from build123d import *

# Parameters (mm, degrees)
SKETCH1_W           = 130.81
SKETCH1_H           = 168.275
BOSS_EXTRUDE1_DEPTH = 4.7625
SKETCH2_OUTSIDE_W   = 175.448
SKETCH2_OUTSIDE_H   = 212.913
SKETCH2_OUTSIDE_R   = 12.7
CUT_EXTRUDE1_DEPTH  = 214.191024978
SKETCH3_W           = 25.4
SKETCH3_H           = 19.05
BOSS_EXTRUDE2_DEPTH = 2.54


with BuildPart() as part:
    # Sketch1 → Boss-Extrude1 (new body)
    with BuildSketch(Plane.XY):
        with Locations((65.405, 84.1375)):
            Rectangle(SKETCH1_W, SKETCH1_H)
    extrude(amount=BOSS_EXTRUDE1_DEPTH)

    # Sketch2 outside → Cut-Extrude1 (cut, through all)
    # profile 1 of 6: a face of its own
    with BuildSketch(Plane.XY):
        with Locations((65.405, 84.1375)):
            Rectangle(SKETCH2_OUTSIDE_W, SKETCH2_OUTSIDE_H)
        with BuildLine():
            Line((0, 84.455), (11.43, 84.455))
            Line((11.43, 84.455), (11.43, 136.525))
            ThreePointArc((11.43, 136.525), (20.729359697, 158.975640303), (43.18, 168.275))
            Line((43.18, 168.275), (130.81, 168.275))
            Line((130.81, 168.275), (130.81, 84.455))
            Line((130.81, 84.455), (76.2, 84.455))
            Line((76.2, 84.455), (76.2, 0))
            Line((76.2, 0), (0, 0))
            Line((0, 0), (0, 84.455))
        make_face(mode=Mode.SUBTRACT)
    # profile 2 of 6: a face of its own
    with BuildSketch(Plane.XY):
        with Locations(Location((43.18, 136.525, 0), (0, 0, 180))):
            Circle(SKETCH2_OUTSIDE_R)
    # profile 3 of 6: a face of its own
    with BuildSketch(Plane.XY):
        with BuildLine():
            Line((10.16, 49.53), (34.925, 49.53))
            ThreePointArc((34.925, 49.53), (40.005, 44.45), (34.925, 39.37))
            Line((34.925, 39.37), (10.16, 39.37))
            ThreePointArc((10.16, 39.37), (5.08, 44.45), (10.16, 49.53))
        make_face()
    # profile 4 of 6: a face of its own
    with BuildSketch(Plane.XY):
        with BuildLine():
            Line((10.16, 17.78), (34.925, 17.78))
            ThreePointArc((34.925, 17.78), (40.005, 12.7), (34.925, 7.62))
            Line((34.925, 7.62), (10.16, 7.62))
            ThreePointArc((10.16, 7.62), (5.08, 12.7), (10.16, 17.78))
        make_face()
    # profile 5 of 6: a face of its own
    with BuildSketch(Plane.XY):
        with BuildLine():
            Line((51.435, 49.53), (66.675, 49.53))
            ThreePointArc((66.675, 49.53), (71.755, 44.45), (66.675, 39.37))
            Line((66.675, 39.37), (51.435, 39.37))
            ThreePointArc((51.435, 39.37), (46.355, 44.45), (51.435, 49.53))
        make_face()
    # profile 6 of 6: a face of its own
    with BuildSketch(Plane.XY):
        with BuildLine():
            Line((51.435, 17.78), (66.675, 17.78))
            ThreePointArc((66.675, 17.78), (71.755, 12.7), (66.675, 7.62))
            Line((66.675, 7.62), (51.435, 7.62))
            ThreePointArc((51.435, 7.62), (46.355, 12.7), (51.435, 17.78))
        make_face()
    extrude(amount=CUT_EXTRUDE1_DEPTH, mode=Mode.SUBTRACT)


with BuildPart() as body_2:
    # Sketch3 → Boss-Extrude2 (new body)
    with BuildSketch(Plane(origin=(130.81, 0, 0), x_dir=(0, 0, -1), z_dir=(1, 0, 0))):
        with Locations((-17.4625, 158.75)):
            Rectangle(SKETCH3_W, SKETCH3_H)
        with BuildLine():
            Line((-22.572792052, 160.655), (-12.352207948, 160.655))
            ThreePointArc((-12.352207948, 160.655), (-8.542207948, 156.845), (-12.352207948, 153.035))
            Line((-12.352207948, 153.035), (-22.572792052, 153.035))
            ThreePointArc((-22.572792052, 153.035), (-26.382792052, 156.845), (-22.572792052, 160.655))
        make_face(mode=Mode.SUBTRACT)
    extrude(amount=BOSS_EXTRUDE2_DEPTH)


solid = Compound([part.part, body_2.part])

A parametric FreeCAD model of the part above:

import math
import FreeCAD as App
import Part
import Sketcher
from FreeCAD import Vector
Q = App.Units.Quantity


def add_polygon(sketch, points):
    """Adds a closed chain of lines whose ends are joined by coincident constraints."""
    first, n = sketch.GeometryCount, len(points)
    for a, b in zip(points, points[1:] + points[:1]):
        sketch.addGeometry(Part.LineSegment(App.Vector(*a, 0), App.Vector(*b, 0)), False)
    for i in range(n):
        sketch.addConstraint(Sketcher.Constraint("Coincident", first + i, 2, first + (i + 1) % n, 1))

doc = App.newDocument("Part")
body = doc.addObject("PartDesign::Body", "Body")

sketch1 = doc.addObject("Sketcher::SketchObject", "Sketch")
body.addObject(sketch1)
sketch1.AttachmentSupport = (doc.XY_Plane, [""])
sketch1.MapMode = "FlatFace"
add_polygon(sketch1, [(0, 168), (0, 0), (131, 0), (131, 168)])
sketch1.addConstraint([
    Sketcher.Constraint("Vertical", 0),
    Sketcher.Constraint("Horizontal", 1),
    Sketcher.Constraint("Vertical", 2),
    Sketcher.Constraint("Horizontal", 3),
    Sketcher.Constraint("Coincident", 0, 2, -1, 1),
    Sketcher.Constraint("DistanceX", 1, 1, 1, 2, Q("5.15 in")),
    Sketcher.Constraint("DistanceY", 0, 2, 0, 1, Q("6.625 in")),
])
pad1 = doc.addObject("PartDesign::Pad", "Pad")
body.addObject(pad1)
pad1.Profile = sketch1
pad1.Length = Q("0.1875 in")

sketch2 = doc.addObject("Sketcher::SketchObject", "Sketch001")
body.addObject(sketch2)
sketch2.AttachmentSupport = (doc.XY_Plane, [""])
sketch2.MapMode = "FlatFace"
add_polygon(sketch2, [(-22, 191), (-22, -22), (153, -22), (153, 191)])
sketch2.addGeometry(Part.LineSegment(Vector(0, 0, 0), Vector(0, 84, 0)), False)
sketch2.addGeometry(Part.LineSegment(Vector(0, 84, 0), Vector(11, 84, 0)), False)
sketch2.addGeometry(Part.LineSegment(Vector(11, 84, 0), Vector(11, 137, 0)), False)
sketch2.addGeometry(Part.ArcOfCircle(Part.Circle(Vector(43, 137, 0), Vector(0, 0, 1), 32), math.radians(90), math.radians(180)), False)
sketch2.addGeometry(Part.LineSegment(Vector(43, 168, 0), Vector(131, 168, 0)), False)
sketch2.addGeometry(Part.LineSegment(Vector(131, 168, 0), Vector(131, 84, 0)), False)
sketch2.addGeometry(Part.LineSegment(Vector(131, 84, 0), Vector(76, 84, 0)), False)
sketch2.addGeometry(Part.LineSegment(Vector(76, 84, 0), Vector(76, 0, 0)), False)
sketch2.addGeometry(Part.LineSegment(Vector(76, 0, 0), Vector(0, 0, 0)), False)
sketch2.addGeometry(Part.Circle(Vector(43, 137, 0), Vector(0, 0, 1), 13), False)
sketch2.addGeometry(Part.LineSegment(Vector(35, 50, 0), Vector(10, 50, 0)), False)
sketch2.addGeometry(Part.ArcOfCircle(Part.Circle(Vector(10, 44, 0), Vector(0, 0, 1), 5), math.radians(90), math.radians(270)), False)
sketch2.addGeometry(Part.LineSegment(Vector(10, 39, 0), Vector(35, 39, 0)), False)
sketch2.addGeometry(Part.ArcOfCircle(Part.Circle(Vector(35, 44, 0), Vector(0, 0, 1), 5), math.radians(-90), math.radians(90)), False)
sketch2.addGeometry(Part.LineSegment(Vector(35, 18, 0), Vector(10, 18, 0)), False)
sketch2.addGeometry(Part.ArcOfCircle(Part.Circle(Vector(10, 13, 0), Vector(0, 0, 1), 5), math.radians(90), math.radians(270)), False)
sketch2.addGeometry(Part.LineSegment(Vector(10, 8, 0), Vector(35, 8, 0)), False)
sketch2.addGeometry(Part.ArcOfCircle(Part.Circle(Vector(35, 13, 0), Vector(0, 0, 1), 5), math.radians(-90), math.radians(90)), False)
sketch2.addGeometry(Part.LineSegment(Vector(67, 50, 0), Vector(51, 50, 0)), False)
sketch2.addGeometry(Part.ArcOfCircle(Part.Circle(Vector(51, 44, 0), Vector(0, 0, 1), 5), math.radians(90), math.radians(270)), False)
sketch2.addGeometry(Part.LineSegment(Vector(51, 39, 0), Vector(67, 39, 0)), False)
sketch2.addGeometry(Part.ArcOfCircle(Part.Circle(Vector(67, 44, 0), Vector(0, 0, 1), 5), math.radians(-90), math.radians(90)), False)
sketch2.addGeometry(Part.LineSegment(Vector(67, 18, 0), Vector(51, 18, 0)), False)
sketch2.addGeometry(Part.ArcOfCircle(Part.Circle(Vector(51, 13, 0), Vector(0, 0, 1), 5), math.radians(90), math.radians(270)), False)
sketch2.addGeometry(Part.LineSegment(Vector(51, 8, 0), Vector(67, 8, 0)), False)
sketch2.addGeometry(Part.ArcOfCircle(Part.Circle(Vector(67, 13, 0), Vector(0, 0, 1), 5), math.radians(-90), math.radians(90)), False)
sketch2.addConstraint([
    Sketcher.Constraint("Coincident", 4, 2, 5, 1),
    Sketcher.Constraint("Coincident", 5, 2, 6, 1),
    Sketcher.Constraint("Tangent", 6, 2, 7, 2),
    Sketcher.Constraint("Tangent", 7, 1, 8, 1),
    Sketcher.Constraint("Coincident", 8, 2, 9, 1),
    Sketcher.Constraint("Coincident", 9, 2, 10, 1),
    Sketcher.Constraint("Coincident", 10, 2, 11, 1),
    Sketcher.Constraint("Coincident", 11, 2, 12, 1),
    Sketcher.Constraint("Coincident", 12, 2, 4, 1),
    Sketcher.Constraint("Tangent", 14, 2, 15, 1),
    Sketcher.Constraint("Tangent", 15, 2, 16, 1),
    Sketcher.Constraint("Tangent", 16, 2, 17, 1),
    Sketcher.Constraint("Tangent", 17, 2, 14, 1),
    Sketcher.Constraint("Tangent", 18, 2, 19, 1),
    Sketcher.Constraint("Tangent", 19, 2, 20, 1),
    Sketcher.Constraint("Tangent", 20, 2, 21, 1),
    Sketcher.Constraint("Tangent", 21, 2, 18, 1),
    Sketcher.Constraint("Tangent", 22, 2, 23, 1),
    Sketcher.Constraint("Tangent", 23, 2, 24, 1),
    Sketcher.Constraint("Tangent", 24, 2, 25, 1),
    Sketcher.Constraint("Tangent", 25, 2, 22, 1),
    Sketcher.Constraint("Tangent", 26, 2, 27, 1),
    Sketcher.Constraint("Tangent", 27, 2, 28, 1),
    Sketcher.Constraint("Tangent", 28, 2, 29, 1),
    Sketcher.Constraint("Tangent", 29, 2, 26, 1),
    Sketcher.Constraint("Vertical", 0),
    Sketcher.Constraint("Horizontal", 1),
    Sketcher.Constraint("Vertical", 2),
    Sketcher.Constraint("Horizontal", 3),
    Sketcher.Constraint("Vertical", 4),
    Sketcher.Constraint("Horizontal", 5),
    Sketcher.Constraint("Vertical", 6),
    Sketcher.Constraint("Horizontal", 8),
    Sketcher.Constraint("Vertical", 9),
    Sketcher.Constraint("Horizontal", 10),
    Sketcher.Constraint("Vertical", 11),
    Sketcher.Constraint("Horizontal", 12),
    Sketcher.Constraint("Horizontal", 14),
    Sketcher.Constraint("Horizontal", 16),
    Sketcher.Constraint("Horizontal", 18),
    Sketcher.Constraint("Horizontal", 20),
    Sketcher.Constraint("Horizontal", 22),
    Sketcher.Constraint("Horizontal", 24),
    Sketcher.Constraint("Horizontal", 26),
    Sketcher.Constraint("Horizontal", 28),
    Sketcher.Constraint("Coincident", 12, 2, -1, 1),
    Sketcher.Constraint("Coincident", 13, 3, 7, 3),
    Sketcher.Constraint("Equal", 17, 19),
    Sketcher.Constraint("Equal", 21, 23),
    Sketcher.Constraint("Equal", 25, 27),
    Sketcher.Constraint("Horizontal", 17, 3, 23, 3),
    Sketcher.Constraint("Horizontal", 21, 3, 27, 3),
    Sketcher.Constraint("Horizontal", 5, 2, 9, 2),
    Sketcher.Constraint("Vertical", 15, 3, 19, 3),
    Sketcher.Constraint("Vertical", 17, 3, 21, 3),
    Sketcher.Constraint("Vertical", 23, 3, 27, 3),
    Sketcher.Constraint("Vertical", 25, 3, 29, 3),
    Sketcher.Constraint("Diameter", 13, Q("1 in")),
    Sketcher.Constraint("Radius", 15, Q("0.2 in")),
    Sketcher.Constraint("DistanceX", 12, 2, 12, 1, Q("3 in")),
    Sketcher.Constraint("Radius", 7, Q("1.25 in")),
    Sketcher.Constraint("DistanceX", 22, 2, 22, 1, Q("0.6 in")),
    Sketcher.Constraint("DistanceY", 9, 2, 9, 1, Q("3.3 in")),
    Sketcher.Constraint("DistanceX", 5, 1, 5, 2, Q("0.45 in")),
    Sketcher.Constraint("DistanceX", 8, 1, 8, 2, Q("3.45 in")),
    Sketcher.Constraint("DistanceX", -1, 1, 15, 3, Q("0.4 in")),
    Sketcher.Constraint("DistanceY", -1, 1, 19, 3, Q("0.5 in")),
    Sketcher.Constraint("DistanceX", 14, 2, 14, 1, Q("0.975 in")),
    Sketcher.Constraint("DistanceY", 4, 1, 4, 2, Q("3.325 in")),
    Sketcher.Constraint("DistanceY", -1, 1, 15, 3, Q("1.75 in")),
    Sketcher.Constraint("DistanceX", 17, 3, 23, 3, Q("0.65 in")),
    Sketcher.Constraint("DistanceX", 1, 1, 1, 2, 175.448),
    Sketcher.Constraint("DistanceY", 0, 2, 0, 1, 212.913),
    Sketcher.Constraint("DistanceX", 0, 2, -1, 1, 22.319),
    Sketcher.Constraint("DistanceY", 0, 2, -1, 1, 22.319),
])
pocket1 = doc.addObject("PartDesign::Pocket", "Pocket")
body.addObject(pocket1)
pocket1.Profile = sketch2
pocket1.Length = 214.191025
pocket1.Reversed = True
body2 = doc.addObject("PartDesign::Body", "Body001")

sketch3 = doc.addObject("Sketcher::SketchObject", "Sketch002")
body2.addObject(sketch3)
sketch3.AttachmentSupport = (doc.getObject("YZ_Plane001"), [""])
sketch3.MapMode = "FlatFace"
sketch3.AttachmentOffset = App.Placement(Vector(0, 0, 5.15 * 25.4), App.Rotation())
add_polygon(sketch3, [(168.3, 30.2), (149.2, 30.2), (149.2, 4.8), (168.3, 4.8)])
sketch3.addGeometry(Part.ArcOfCircle(Part.Circle(Vector(156.8, 22.6, 0), Vector(0, 0, 1), 3.8), math.radians(0), math.radians(180)), False)
sketch3.addGeometry(Part.LineSegment(Vector(160.7, 22.6, 0), Vector(160.7, 12.4, 0)), False)
sketch3.addGeometry(Part.ArcOfCircle(Part.Circle(Vector(156.8, 12.4, 0), Vector(0, 0, 1), 3.8), math.radians(180), math.radians(360)), False)
sketch3.addGeometry(Part.LineSegment(Vector(153, 12.4, 0), Vector(153, 22.6, 0)), False)
sketch3.addConstraint([
    Sketcher.Constraint("Tangent", 4, 1, 5, 1),
    Sketcher.Constraint("Tangent", 5, 2, 6, 2),
    Sketcher.Constraint("Tangent", 6, 1, 7, 1),
    Sketcher.Constraint("Tangent", 7, 2, 4, 2),
    Sketcher.Constraint("Horizontal", 0),
    Sketcher.Constraint("Vertical", 1),
    Sketcher.Constraint("Horizontal", 2),
    Sketcher.Constraint("Vertical", 3),
    Sketcher.Constraint("Vertical", 5),
    Sketcher.Constraint("Vertical", 7),
    Sketcher.Constraint("DistanceY", 1, 2, 1, 1, Q("1 in")),
    Sketcher.Constraint("Radius", 4, Q("0.15 in")),
    Sketcher.Constraint("DistanceX", 0, 2, 0, 1, Q("0.75 in")),
    Sketcher.Constraint("DistanceX", 0, 2, 4, 3, Q("0.3 in")),
    Sketcher.Constraint("DistanceX", -1, 1, 4, 3, Q("6.175 in")),
    Sketcher.Constraint("DistanceY", -1, 1, 0, 2, Q("1.1875 in")),
    Sketcher.Constraint("DistanceY", 5, 2, 5, 1, 10.220584),
    Sketcher.Constraint("DistanceY", -1, 1, 4, 3, 22.572792),
])
pad2 = doc.addObject("PartDesign::Pad", "Pad001")
body2.addObject(pad2)
pad2.Profile = sketch3
pad2.Length = Q("0.1 in")

doc.recompute()
